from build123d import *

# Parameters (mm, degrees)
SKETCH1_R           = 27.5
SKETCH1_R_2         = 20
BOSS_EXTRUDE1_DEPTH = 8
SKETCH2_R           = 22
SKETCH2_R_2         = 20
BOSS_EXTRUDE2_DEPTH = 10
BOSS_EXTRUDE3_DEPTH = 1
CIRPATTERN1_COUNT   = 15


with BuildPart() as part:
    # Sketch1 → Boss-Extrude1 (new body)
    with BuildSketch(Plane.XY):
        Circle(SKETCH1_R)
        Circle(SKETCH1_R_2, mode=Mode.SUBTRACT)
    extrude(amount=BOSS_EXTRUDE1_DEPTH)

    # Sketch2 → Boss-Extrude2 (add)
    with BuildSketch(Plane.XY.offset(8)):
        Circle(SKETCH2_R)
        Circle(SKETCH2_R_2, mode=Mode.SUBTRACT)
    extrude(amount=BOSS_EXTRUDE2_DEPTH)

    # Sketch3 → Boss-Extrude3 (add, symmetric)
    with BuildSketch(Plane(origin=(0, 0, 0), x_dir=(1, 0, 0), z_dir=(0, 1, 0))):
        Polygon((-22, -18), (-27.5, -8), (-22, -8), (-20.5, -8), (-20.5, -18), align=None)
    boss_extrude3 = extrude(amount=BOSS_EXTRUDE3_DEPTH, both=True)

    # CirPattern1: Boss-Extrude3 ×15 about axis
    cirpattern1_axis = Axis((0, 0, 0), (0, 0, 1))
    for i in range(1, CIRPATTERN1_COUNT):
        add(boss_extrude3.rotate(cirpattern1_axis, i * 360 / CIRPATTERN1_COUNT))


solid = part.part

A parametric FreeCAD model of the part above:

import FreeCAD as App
import Part
import Sketcher
from FreeCAD import Vector

doc = App.newDocument("Part")
params = doc.addObject("Spreadsheet::Sheet", "Params")
for row, (alias, value) in enumerate([
    ("sketch1_diameter", "55 mm"),
    ("sketch1_diameter2", "40 mm"),
    ("pad1_length", "8 mm"),
    ("sketch2_diameter", "44 mm"),
    ("sketch2_diameter2", "40 mm"),
    ("pad2_length", "10 mm"),
    ("sketch3_width", "7 mm"),
    ("sketch3_height", "10 mm"),
    ("sketch3_width2", "1.5 mm"),
    ("pad3_length", "2 mm"),
], start=1):
    params.set(f"A{row}", alias)
    params.set(f"B{row}", "=" + value)
    params.setAlias(f"B{row}", alias)

body = doc.addObject("PartDesign::Body", "Body")

# Sketch on XY plane
sketch1 = body.newObject("Sketcher::SketchObject", "Sketch")
sketch1.AttachmentSupport = (doc.getObject("XY_Plane"), [""])
sketch1.MapMode = "FlatFace"
sketch1.addGeometry([
    Part.Circle(Vector(0, 0, 0), Vector(0, 0, 1), 27.5),
    Part.Circle(Vector(0, 0, 0), Vector(0, 0, 1), 20),
], False)
sketch1.addConstraint([
    Sketcher.Constraint("Coincident", 0, 3, -1, 1),
    Sketcher.Constraint("Coincident", 1, 3, -1, 1),
    Sketcher.Constraint("Diameter", 0, 55.0),
    Sketcher.Constraint("Diameter", 1, 40.0),
])
sketch1.setExpression("Constraints[2]", "Params.sketch1_diameter")
sketch1.setExpression("Constraints[3]", "Params.sketch1_diameter2")
pad1 = body.newObject("PartDesign::Pad", "Pad")
pad1.Profile = sketch1
pad1.setExpression("Length", "Params.pad1_length")

# Sketch on XY plane
sketch2 = body.newObject("Sketcher::SketchObject", "Sketch001")
sketch2.AttachmentSupport = (doc.getObject("XY_Plane"), [""])
sketch2.MapMode = "FlatFace"
sketch2.AttachmentOffset = App.Placement(Vector(0, 0, 8), App.Rotation())
sketch2.addGeometry([
    Part.Circle(Vector(0, 0, 0), Vector(0, 0, 1), 22),
    Part.Circle(Vector(0, 0, 0), Vector(0, 0, 1), 20),
], False)
sketch2.addConstraint([
    Sketcher.Constraint("Coincident", 0, 3, -1, 1),
    Sketcher.Constraint("Coincident", 1, 3, -1, 1),
    Sketcher.Constraint("Diameter", 0, 44.0),
    Sketcher.Constraint("Diameter", 1, 40.0),
])
sketch2.setExpression("Constraints[2]", "Params.sketch2_diameter")
sketch2.setExpression("Constraints[3]", "Params.sketch2_diameter2")
pad2 = body.newObject("PartDesign::Pad", "Pad001")
pad2.Profile = sketch2
pad2.setExpression("Length", "Params.pad2_length")

# Sketch on XZ plane
sketch3 = body.newObject("Sketcher::SketchObject", "Sketch002")
sketch3.AttachmentSupport = (doc.getObject("XZ_Plane"), [""])
sketch3.MapMode = "FlatFace"
sketch3.addGeometry([
    Part.LineSegment(Vector(-27.5, 8, 0), Vector(-22, 18, 0)),
    Part.LineSegment(Vector(-22, 18, 0), Vector(-20.5, 18, 0)),
    Part.LineSegment(Vector(-20.5, 18, 0), Vector(-20.5, 8, 0)),
    Part.LineSegment(Vector(-20.5, 8, 0), Vector(-27.5, 8, 0)),
], False)
sketch3.addConstraint([
    Sketcher.Constraint("Coincident", 0, 2, 1, 1),
    Sketcher.Constraint("Coincident", 1, 2, 2, 1),
    Sketcher.Constraint("Coincident", 2, 2, 3, 1),
    Sketcher.Constraint("Coincident", 3, 2, 0, 1),
    Sketcher.Constraint("Horizontal", 1),
    Sketcher.Constraint("Vertical", 2),
    Sketcher.Constraint("Horizontal", 3),
    Sketcher.Constraint("DistanceX", 3, 2, 3, 1, 7.0),
    Sketcher.Constraint("DistanceY", 2, 2, 2, 1, 10.0),
    Sketcher.Constraint("DistanceX", 1, 1, 1, 2, 1.5),
    Sketcher.Constraint("DistanceX", 0, 2, -1, 1, 22.0),
    Sketcher.Constraint("DistanceY", -1, 1, 0, 2, 18.0),
])
sketch3.setExpression("Constraints[7]", "Params.sketch3_width")
sketch3.setExpression("Constraints[8]", "Params.sketch3_height")
sketch3.setExpression("Constraints[9]", "Params.sketch3_width2")
pad3 = body.newObject("PartDesign::Pad", "Pad002")
pad3.Profile = sketch3
pad3.setExpression("Length", "Params.pad3_length")
pad3.Midplane = True
doc.recompute()

polarpattern = body.newObject("PartDesign::PolarPattern", "PolarPattern")
polarpattern.Originals = [pad3]
polarpattern.Axis = (doc.getObject("Z_Axis"), [""])
polarpattern.Angle = 360
polarpattern.Occurrences = 15
body.Tip = polarpattern

doc.recompute()
